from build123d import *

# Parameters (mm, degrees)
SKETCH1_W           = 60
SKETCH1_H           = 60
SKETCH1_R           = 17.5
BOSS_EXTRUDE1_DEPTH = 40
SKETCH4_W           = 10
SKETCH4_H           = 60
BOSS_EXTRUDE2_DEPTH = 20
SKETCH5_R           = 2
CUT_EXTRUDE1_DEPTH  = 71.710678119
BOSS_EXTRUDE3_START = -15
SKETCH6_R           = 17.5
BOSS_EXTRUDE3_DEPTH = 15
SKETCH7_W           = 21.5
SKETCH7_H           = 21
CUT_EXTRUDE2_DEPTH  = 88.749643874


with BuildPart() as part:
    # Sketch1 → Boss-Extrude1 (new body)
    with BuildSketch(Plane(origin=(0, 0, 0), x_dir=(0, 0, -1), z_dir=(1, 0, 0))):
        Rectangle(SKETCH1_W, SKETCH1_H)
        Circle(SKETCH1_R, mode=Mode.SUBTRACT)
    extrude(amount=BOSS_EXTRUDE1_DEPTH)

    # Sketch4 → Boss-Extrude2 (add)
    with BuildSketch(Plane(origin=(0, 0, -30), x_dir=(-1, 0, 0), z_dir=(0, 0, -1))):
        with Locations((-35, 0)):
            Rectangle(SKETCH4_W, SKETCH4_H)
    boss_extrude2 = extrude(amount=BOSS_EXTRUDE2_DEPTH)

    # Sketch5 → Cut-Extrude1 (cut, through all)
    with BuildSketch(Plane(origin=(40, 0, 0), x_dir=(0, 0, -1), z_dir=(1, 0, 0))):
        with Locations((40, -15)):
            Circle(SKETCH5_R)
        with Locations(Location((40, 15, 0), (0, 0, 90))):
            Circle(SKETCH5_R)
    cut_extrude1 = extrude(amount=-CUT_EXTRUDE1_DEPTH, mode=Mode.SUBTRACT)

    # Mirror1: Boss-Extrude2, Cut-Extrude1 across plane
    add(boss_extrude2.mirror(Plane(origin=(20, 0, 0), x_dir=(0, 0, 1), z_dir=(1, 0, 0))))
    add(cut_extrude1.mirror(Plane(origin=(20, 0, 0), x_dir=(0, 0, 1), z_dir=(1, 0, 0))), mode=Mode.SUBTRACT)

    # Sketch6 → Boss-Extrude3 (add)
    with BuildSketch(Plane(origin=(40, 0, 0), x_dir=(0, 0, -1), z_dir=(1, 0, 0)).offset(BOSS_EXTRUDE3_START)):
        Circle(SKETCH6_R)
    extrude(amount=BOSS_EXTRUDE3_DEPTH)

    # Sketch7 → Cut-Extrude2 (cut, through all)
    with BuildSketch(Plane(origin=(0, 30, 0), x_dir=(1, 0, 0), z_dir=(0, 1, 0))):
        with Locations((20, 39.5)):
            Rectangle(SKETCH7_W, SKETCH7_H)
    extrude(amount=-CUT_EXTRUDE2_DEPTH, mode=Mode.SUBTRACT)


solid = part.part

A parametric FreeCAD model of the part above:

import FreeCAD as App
import Part
import Sketcher

V = App.Vector

doc = App.newDocument("Part")
body = doc.addObject("PartDesign::Body", "Body")

sketch1 = doc.addObject("Sketcher::SketchObject", "Sketch")
body.addObject(sketch1)
sketch1.AttachmentSupport = (doc.YZ_Plane, [""])
sketch1.MapMode = "FlatFace"
sketch1.addGeometry([
    Part.LineSegment(V(30, 30, 0), V(-30, 30, 0)),
    Part.LineSegment(V(-30, 30, 0), V(-30, -30, 0)),
    Part.LineSegment(V(-30, -30, 0), V(30, -30, 0)),
    Part.LineSegment(V(30, -30, 0), V(30, 30, 0)),
    Part.Circle(V(0, 0, 0), V(0, 0, 1), 18),
], False)
sketch1.addConstraint([
    Sketcher.Constraint("Coincident", 0, 2, 1, 1),
    Sketcher.Constraint("Coincident", 1, 2, 2, 1),
    Sketcher.Constraint("Coincident", 2, 2, 3, 1),
    Sketcher.Constraint("Coincident", 3, 2, 0, 1),
    Sketcher.Constraint("Horizontal", 0),
    Sketcher.Constraint("Vertical", 1),
    Sketcher.Constraint("Horizontal", 2),
    Sketcher.Constraint("Vertical", 3),
    Sketcher.Constraint("Coincident", 4, 3, -1, 1),
    Sketcher.Constraint("Symmetric", 0, 2, 2, 2, -1, 1),
    Sketcher.Constraint("Equal", 2, 1),
    Sketcher.Constraint("Diameter", 4, 35.0),
    Sketcher.Constraint("DistanceX", 0, 2, 0, 1, 60.0),
])
pad1 = doc.addObject("PartDesign::Pad", "Pad")
body.addObject(pad1)
pad1.Profile = sketch1
pad1.Length = 40

sketch2 = doc.addObject("Sketcher::SketchObject", "Sketch001")
body.addObject(sketch2)
sketch2.AttachmentSupport = (doc.XY_Plane, [""])
sketch2.MapMode = "FlatFace"
sketch2.AttachmentOffset = App.Placement(V(0, 0, -30), App.Rotation())
sketch2.addGeometry([
    Part.LineSegment(V(40, 30, 0), V(40, -30, 0)),
    Part.LineSegment(V(40, -30, 0), V(30, -30, 0)),
    Part.LineSegment(V(30, -30, 0), V(30, 30, 0)),
    Part.LineSegment(V(30, 30, 0), V(40, 30, 0)),
], False)
sketch2.addConstraint([
    Sketcher.Constraint("Coincident", 0, 2, 1, 1),
    Sketcher.Constraint("Coincident", 1, 2, 2, 1),
    Sketcher.Constraint("Coincident", 2, 2, 3, 1),
    Sketcher.Constraint("Coincident", 3, 2, 0, 1),
    Sketcher.Constraint("Vertical", 0),
    Sketcher.Constraint("Horizontal", 1),
    Sketcher.Constraint("Vertical", 2),
    Sketcher.Constraint("Horizontal", 3),
    Sketcher.Constraint("DistanceX", 1, 2, 1, 1, 10.0),
    Sketcher.Constraint("DistanceY", 0, 2, 0, 1, 60.0),
    Sketcher.Constraint("DistanceX", -1, 1, 0, 2, 40.0),
    Sketcher.Constraint("DistanceY", 0, 2, -1, 1, 30.0),
])
pad2 = doc.addObject("PartDesign::Pad", "Pad001")
body.addObject(pad2)
pad2.Profile = sketch2
pad2.Length = 20
pad2.Reversed = True

sketch3 = doc.addObject("Sketcher::SketchObject", "Sketch002")
body.addObject(sketch3)
sketch3.AttachmentSupport = (doc.YZ_Plane, [""])
sketch3.MapMode = "FlatFace"
sketch3.AttachmentOffset = App.Placement(V(0, 0, 40), App.Rotation())
sketch3.addGeometry([
    Part.Circle(V(-15, -40, 0), V(0, 0, 1), 2),
    Part.Circle(V(15, -40, 0), V(0, 0, 1), 2),
], False)
sketch3.addConstraint([
    Sketcher.Constraint("Equal", 0, 1),
    Sketcher.Constraint("Symmetric", 0, 3, 1, 3, -2),
    Sketcher.Constraint("Diameter", 0, 4.0),
    Sketcher.Constraint("DistanceX", 0, 3, -1, 1, 15.0),
    Sketcher.Constraint("DistanceY", 0, 3, -1, 1, 40.0),
])
pocket1 = doc.addObject("PartDesign::Pocket", "Pocket")
body.addObject(pocket1)
pocket1.Profile = sketch3
pocket1.Type = "ThroughAll"
doc.recompute()

datumplane = doc.addObject("PartDesign::Plane", "DatumPlane")
body.addObject(datumplane)
datumplane.AttachmentSupport = (doc.YZ_Plane, [""])
datumplane.MapMode = "FlatFace"
datumplane.AttachmentOffset = App.Placement(V(0, 0, 20), App.Rotation())
mirrored = doc.addObject("PartDesign::Mirrored", "Mirrored")
body.addObject(mirrored)
mirrored.Originals = [pad2, pocket1]
mirrored.MirrorPlane = (datumplane, [""])
body.Tip = mirrored

sketch4 = doc.addObject("Sketcher::SketchObject", "Sketch003")
body.addObject(sketch4)
sketch4.AttachmentSupport = (doc.YZ_Plane, [""])
sketch4.MapMode = "FlatFace"
sketch4.AttachmentOffset = App.Placement(V(0, 0, 25), App.Rotation())
sketch4.addGeometry(Part.Circle(V(0, 0, 0), V(0, 0, 1), 18), False)
sketch4.addConstraint([
    Sketcher.Constraint("Coincident", 0, 3, -1, 1),
    Sketcher.Constraint("Diameter", 0, 35.0),
])
pad3 = doc.addObject("PartDesign::Pad", "Pad002")
body.addObject(pad3)
pad3.Profile = sketch4
pad3.Length = 15

sketch5 = doc.addObject("Sketcher::SketchObject", "Sketch004")
body.addObject(sketch5)
sketch5.AttachmentSupport = (doc.XZ_Plane, [""])
sketch5.MapMode = "FlatFace"
sketch5.AttachmentOffset = App.Placement(V(0, 0, -30), App.Rotation())
sketch5.addGeometry([
    Part.LineSegment(V(9, -50, 0), V(9, -29, 0)),
    Part.LineSegment(V(9, -29, 0), V(31, -29, 0)),
    Part.LineSegment(V(31, -29, 0), V(31, -50, 0)),
    Part.LineSegment(V(31, -50, 0), V(9, -50, 0)),
], False)
sketch5.addConstraint([
    Sketcher.Constraint("Coincident", 0, 2, 1, 1),
    Sketcher.Constraint("Coincident", 1, 2, 2, 1),
    Sketcher.Constraint("Coincident", 2, 2, 3, 1),
    Sketcher.Constraint("Coincident", 3, 2, 0, 1),
    Sketcher.Constraint("Vertical", 0),
    Sketcher.Constraint("Horizontal", 1),
    Sketcher.Constraint("Vertical", 2),
    Sketcher.Constraint("Horizontal", 3),
    Sketcher.Constraint("DistanceY", 0, 1, 0, 2, 21.0),
    Sketcher.Constraint("DistanceX", 1, 1, 1, 2, 21.5),
    Sketcher.Constraint("DistanceY", 0, 2, -1, 1, 29.0),
    Sketcher.Constraint("DistanceX", -1, 1, 0, 2, 9.25),
])
pocket2 = doc.addObject("PartDesign::Pocket", "Pocket001")
body.addObject(pocket2)
pocket2.Profile = sketch5
pocket2.Type = "ThroughAll"
pocket2.Reversed = True

doc.recompute()
